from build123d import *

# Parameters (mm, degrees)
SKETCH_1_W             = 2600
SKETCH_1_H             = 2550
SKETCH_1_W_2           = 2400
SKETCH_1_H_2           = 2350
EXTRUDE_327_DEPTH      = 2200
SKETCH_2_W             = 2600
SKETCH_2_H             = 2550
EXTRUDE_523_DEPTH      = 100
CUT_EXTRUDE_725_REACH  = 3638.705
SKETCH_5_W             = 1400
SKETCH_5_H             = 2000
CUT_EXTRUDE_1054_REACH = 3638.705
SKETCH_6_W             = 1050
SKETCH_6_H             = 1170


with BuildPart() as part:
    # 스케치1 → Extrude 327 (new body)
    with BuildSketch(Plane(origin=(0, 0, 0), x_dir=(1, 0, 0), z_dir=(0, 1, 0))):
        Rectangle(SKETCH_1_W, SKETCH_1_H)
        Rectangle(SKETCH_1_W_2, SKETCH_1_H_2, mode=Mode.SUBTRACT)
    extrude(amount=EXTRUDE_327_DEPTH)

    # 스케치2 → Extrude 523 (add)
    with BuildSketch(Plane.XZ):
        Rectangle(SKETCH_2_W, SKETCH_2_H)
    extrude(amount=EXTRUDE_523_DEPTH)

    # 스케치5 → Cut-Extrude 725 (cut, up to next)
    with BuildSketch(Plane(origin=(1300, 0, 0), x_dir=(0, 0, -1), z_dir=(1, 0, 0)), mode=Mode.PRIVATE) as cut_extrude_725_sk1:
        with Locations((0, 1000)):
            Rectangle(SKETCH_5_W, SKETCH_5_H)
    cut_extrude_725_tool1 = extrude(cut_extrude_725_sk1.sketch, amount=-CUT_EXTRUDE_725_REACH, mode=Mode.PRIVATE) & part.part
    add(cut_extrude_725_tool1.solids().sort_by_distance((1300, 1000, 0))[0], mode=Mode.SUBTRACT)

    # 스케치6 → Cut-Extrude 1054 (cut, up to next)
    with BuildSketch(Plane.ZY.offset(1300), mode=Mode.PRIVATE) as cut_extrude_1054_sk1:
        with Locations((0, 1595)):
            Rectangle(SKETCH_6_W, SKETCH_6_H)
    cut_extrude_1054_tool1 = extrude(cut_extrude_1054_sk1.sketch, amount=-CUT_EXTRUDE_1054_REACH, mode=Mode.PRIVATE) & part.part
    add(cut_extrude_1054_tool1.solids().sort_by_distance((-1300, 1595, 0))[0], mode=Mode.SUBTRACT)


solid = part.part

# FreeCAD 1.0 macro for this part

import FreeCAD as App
import Part
import Sketcher

V = App.Vector
Q = App.Units.Quantity

doc = App.newDocument("Part")
body = doc.addObject("PartDesign::Body", "Body")

# Sketch on XZ plane
sketch1 = body.newObject("Sketcher::SketchObject", "Sketch")
sketch1.AttachmentSupport = (doc.getObject("XZ_Plane"), [""])
sketch1.MapMode = "FlatFace"
sketch1.addGeometry([
    Part.LineSegment(V(-1300, -1275, 0), V(-1300, 1275, 0)),  # 0
    Part.LineSegment(V(-1300, 1275, 0), V(1300, 1275, 0)),  # 1
    Part.LineSegment(V(1300, 1275, 0), V(1300, -1275, 0)),  # 2
    Part.LineSegment(V(1300, -1275, 0), V(-1300, -1275, 0)),  # 3
    Part.LineSegment(V(1200, 1175, 0), V(-1200, 1175, 0)),  # 4
    Part.LineSegment(V(-1200, 1175, 0), V(-1200, -1175, 0)),  # 5
    Part.LineSegment(V(-1200, -1175, 0), V(1200, -1175, 0)),  # 6
    Part.LineSegment(V(1200, -1175, 0), V(1200, 1175, 0)),  # 7
], False)
sketch1.addConstraint([
    Sketcher.Constraint("Coincident", 0, 2, 1, 1),
    Sketcher.Constraint("Coincident", 1, 2, 2, 1),
    Sketcher.Constraint("Coincident", 2, 2, 3, 1),
    Sketcher.Constraint("Coincident", 3, 2, 0, 1),
    Sketcher.Constraint("Coincident", 4, 2, 5, 1),
    Sketcher.Constraint("Coincident", 5, 2, 6, 1),
    Sketcher.Constraint("Coincident", 6, 2, 7, 1),
    Sketcher.Constraint("Coincident", 7, 2, 4, 1),
    Sketcher.Constraint("Vertical", 0),
    Sketcher.Constraint("Horizontal", 1),
    Sketcher.Constraint("Vertical", 2),
    Sketcher.Constraint("Horizontal", 3),
    Sketcher.Constraint("Horizontal", 4),
    Sketcher.Constraint("Vertical", 5),
    Sketcher.Constraint("Horizontal", 6),
    Sketcher.Constraint("Vertical", 7),
    Sketcher.Constraint("Symmetric", 0, 2, 2, 2, -1, 1),
    Sketcher.Constraint("Symmetric", 4, 2, 6, 2, -1, 1),
    Sketcher.Constraint("DistanceX", 1, 1, 1, 2, Q("2600 mm")),
    Sketcher.Constraint("DistanceX", 4, 2, 4, 1, Q("2400 mm")),
    Sketcher.Constraint("DistanceY", 0, 1, 0, 2, Q("2550 mm")),
    Sketcher.Constraint("DistanceY", 5, 2, 5, 1, Q("2350 mm")),
])
pad1 = body.newObject("PartDesign::Pad", "Pad")
pad1.Profile = sketch1
pad1.Length = 2200
pad1.Reversed = True

# Sketch on XZ plane
sketch2 = body.newObject("Sketcher::SketchObject", "Sketch001")
sketch2.AttachmentSupport = (doc.getObject("XZ_Plane"), [""])
sketch2.MapMode = "FlatFace"
sketch2.addGeometry([
    Part.LineSegment(V(-1300, 1275, 0), V(-1300, -1275, 0)),
    Part.LineSegment(V(-1300, -1275, 0), V(1300, -1275, 0)),
    Part.LineSegment(V(1300, -1275, 0), V(1300, 1275, 0)),
    Part.LineSegment(V(1300, 1275, 0), V(-1300, 1275, 0)),
], False)
sketch2.addConstraint([
    Sketcher.Constraint("Coincident", 0, 2, 1, 1),
    Sketcher.Constraint("Coincident", 1, 2, 2, 1),
    Sketcher.Constraint("Coincident", 2, 2, 3, 1),
    Sketcher.Constraint("Coincident", 3, 2, 0, 1),
    Sketcher.Constraint("Vertical", 0),
    Sketcher.Constraint("Horizontal", 1),
    Sketcher.Constraint("Vertical", 2),
    Sketcher.Constraint("Horizontal", 3),
    Sketcher.Constraint("Symmetric", 0, 2, 2, 2, -1, 1),
    Sketcher.Constraint("DistanceX", 1, 1, 1, 2, Q("2600 mm")),
    Sketcher.Constraint("DistanceY", 0, 2, 0, 1, Q("2550 mm")),
])
pad2 = body.newObject("PartDesign::Pad", "Pad001")
pad2.Profile = sketch2
pad2.Length = 100

# Sketch on YZ plane
sketch3 = body.newObject("Sketcher::SketchObject", "Sketch002")
sketch3.AttachmentSupport = (doc.getObject("YZ_Plane"), [""])
sketch3.MapMode = "FlatFace"
sketch3.AttachmentOffset = App.Placement(V(0, 0, 1300), App.Rotation())
sketch3.addGeometry([
    Part.LineSegment(V(2000, 700, 0), V(0, 700, 0)),
    Part.LineSegment(V(0, 700, 0), V(0, -700, 0)),
    Part.LineSegment(V(0, -700, 0), V(2000, -700, 0)),
    Part.LineSegment(V(2000, -700, 0), V(2000, 700, 0)),
], False)
sketch3.addConstraint([
    Sketcher.Constraint("Coincident", 0, 2, 1, 1),
    Sketcher.Constraint("Coincident", 1, 2, 2, 1),
    Sketcher.Constraint("Coincident", 2, 2, 3, 1),
    Sketcher.Constraint("Coincident", 3, 2, 0, 1),
    Sketcher.Constraint("Horizontal", 0),
    Sketcher.Constraint("Vertical", 1),
    Sketcher.Constraint("Horizontal", 2),
    Sketcher.Constraint("Vertical", 3),
    Sketcher.Constraint("Symmetric", 0, 2, 1, 2, -1, 1),
    Sketcher.Constraint("DistanceX", 0, 2, 0, 1, Q("2000 mm")),
    Sketcher.Constraint("DistanceY", 1, 2, 1, 1, Q("1400 mm")),
])
pocket1 = body.newObject("PartDesign::Pocket", "Pocket")
pocket1.Profile = sketch3
pocket1.Type = "UpToFirst"

# Sketch on YZ plane
sketch4 = body.newObject("Sketcher::SketchObject", "Sketch003")
sketch4.AttachmentSupport = (doc.getObject("YZ_Plane"), [""])
sketch4.MapMode = "FlatFace"
sketch4.AttachmentOffset = App.Placement(V(0, 0, -1300), App.Rotation())
sketch4.addGeometry([
    Part.LineSegment(V(2180, -525, 0), V(1010, -525, 0)),
    Part.LineSegment(V(1010, -525, 0), V(1010, 525, 0)),
    Part.LineSegment(V(1010, 525, 0), V(2180, 525, 0)),
    Part.LineSegment(V(2180, 525, 0), V(2180, -525, 0)),
], False)
sketch4.addConstraint([
    Sketcher.Constraint("Coincident", 0, 2, 1, 1),
    Sketcher.Constraint("Coincident", 1, 2, 2, 1),
    Sketcher.Constraint("Coincident", 2, 2, 3, 1),
    Sketcher.Constraint("Coincident", 3, 2, 0, 1),
    Sketcher.Constraint("Horizontal", 0),
    Sketcher.Constraint("Vertical", 1),
    Sketcher.Constraint("Horizontal", 2),
    Sketcher.Constraint("Vertical", 3),
    Sketcher.Constraint("DistanceX", 0, 2, 0, 1, Q("1170 mm")),
    Sketcher.Constraint("DistanceY", 1, 1, 1, 2, Q("1050 mm")),
    Sketcher.Constraint("DistanceX", -1, 1, 0, 2, Q("1010 mm")),
    Sketcher.Constraint("DistanceY", 0, 2, -1, 1, Q("525 mm")),
])
pocket2 = body.newObject("PartDesign::Pocket", "Pocket001")
pocket2.Profile = sketch4
pocket2.Type = "UpToFirst"
pocket2.Reversed = True

doc.recompute()
